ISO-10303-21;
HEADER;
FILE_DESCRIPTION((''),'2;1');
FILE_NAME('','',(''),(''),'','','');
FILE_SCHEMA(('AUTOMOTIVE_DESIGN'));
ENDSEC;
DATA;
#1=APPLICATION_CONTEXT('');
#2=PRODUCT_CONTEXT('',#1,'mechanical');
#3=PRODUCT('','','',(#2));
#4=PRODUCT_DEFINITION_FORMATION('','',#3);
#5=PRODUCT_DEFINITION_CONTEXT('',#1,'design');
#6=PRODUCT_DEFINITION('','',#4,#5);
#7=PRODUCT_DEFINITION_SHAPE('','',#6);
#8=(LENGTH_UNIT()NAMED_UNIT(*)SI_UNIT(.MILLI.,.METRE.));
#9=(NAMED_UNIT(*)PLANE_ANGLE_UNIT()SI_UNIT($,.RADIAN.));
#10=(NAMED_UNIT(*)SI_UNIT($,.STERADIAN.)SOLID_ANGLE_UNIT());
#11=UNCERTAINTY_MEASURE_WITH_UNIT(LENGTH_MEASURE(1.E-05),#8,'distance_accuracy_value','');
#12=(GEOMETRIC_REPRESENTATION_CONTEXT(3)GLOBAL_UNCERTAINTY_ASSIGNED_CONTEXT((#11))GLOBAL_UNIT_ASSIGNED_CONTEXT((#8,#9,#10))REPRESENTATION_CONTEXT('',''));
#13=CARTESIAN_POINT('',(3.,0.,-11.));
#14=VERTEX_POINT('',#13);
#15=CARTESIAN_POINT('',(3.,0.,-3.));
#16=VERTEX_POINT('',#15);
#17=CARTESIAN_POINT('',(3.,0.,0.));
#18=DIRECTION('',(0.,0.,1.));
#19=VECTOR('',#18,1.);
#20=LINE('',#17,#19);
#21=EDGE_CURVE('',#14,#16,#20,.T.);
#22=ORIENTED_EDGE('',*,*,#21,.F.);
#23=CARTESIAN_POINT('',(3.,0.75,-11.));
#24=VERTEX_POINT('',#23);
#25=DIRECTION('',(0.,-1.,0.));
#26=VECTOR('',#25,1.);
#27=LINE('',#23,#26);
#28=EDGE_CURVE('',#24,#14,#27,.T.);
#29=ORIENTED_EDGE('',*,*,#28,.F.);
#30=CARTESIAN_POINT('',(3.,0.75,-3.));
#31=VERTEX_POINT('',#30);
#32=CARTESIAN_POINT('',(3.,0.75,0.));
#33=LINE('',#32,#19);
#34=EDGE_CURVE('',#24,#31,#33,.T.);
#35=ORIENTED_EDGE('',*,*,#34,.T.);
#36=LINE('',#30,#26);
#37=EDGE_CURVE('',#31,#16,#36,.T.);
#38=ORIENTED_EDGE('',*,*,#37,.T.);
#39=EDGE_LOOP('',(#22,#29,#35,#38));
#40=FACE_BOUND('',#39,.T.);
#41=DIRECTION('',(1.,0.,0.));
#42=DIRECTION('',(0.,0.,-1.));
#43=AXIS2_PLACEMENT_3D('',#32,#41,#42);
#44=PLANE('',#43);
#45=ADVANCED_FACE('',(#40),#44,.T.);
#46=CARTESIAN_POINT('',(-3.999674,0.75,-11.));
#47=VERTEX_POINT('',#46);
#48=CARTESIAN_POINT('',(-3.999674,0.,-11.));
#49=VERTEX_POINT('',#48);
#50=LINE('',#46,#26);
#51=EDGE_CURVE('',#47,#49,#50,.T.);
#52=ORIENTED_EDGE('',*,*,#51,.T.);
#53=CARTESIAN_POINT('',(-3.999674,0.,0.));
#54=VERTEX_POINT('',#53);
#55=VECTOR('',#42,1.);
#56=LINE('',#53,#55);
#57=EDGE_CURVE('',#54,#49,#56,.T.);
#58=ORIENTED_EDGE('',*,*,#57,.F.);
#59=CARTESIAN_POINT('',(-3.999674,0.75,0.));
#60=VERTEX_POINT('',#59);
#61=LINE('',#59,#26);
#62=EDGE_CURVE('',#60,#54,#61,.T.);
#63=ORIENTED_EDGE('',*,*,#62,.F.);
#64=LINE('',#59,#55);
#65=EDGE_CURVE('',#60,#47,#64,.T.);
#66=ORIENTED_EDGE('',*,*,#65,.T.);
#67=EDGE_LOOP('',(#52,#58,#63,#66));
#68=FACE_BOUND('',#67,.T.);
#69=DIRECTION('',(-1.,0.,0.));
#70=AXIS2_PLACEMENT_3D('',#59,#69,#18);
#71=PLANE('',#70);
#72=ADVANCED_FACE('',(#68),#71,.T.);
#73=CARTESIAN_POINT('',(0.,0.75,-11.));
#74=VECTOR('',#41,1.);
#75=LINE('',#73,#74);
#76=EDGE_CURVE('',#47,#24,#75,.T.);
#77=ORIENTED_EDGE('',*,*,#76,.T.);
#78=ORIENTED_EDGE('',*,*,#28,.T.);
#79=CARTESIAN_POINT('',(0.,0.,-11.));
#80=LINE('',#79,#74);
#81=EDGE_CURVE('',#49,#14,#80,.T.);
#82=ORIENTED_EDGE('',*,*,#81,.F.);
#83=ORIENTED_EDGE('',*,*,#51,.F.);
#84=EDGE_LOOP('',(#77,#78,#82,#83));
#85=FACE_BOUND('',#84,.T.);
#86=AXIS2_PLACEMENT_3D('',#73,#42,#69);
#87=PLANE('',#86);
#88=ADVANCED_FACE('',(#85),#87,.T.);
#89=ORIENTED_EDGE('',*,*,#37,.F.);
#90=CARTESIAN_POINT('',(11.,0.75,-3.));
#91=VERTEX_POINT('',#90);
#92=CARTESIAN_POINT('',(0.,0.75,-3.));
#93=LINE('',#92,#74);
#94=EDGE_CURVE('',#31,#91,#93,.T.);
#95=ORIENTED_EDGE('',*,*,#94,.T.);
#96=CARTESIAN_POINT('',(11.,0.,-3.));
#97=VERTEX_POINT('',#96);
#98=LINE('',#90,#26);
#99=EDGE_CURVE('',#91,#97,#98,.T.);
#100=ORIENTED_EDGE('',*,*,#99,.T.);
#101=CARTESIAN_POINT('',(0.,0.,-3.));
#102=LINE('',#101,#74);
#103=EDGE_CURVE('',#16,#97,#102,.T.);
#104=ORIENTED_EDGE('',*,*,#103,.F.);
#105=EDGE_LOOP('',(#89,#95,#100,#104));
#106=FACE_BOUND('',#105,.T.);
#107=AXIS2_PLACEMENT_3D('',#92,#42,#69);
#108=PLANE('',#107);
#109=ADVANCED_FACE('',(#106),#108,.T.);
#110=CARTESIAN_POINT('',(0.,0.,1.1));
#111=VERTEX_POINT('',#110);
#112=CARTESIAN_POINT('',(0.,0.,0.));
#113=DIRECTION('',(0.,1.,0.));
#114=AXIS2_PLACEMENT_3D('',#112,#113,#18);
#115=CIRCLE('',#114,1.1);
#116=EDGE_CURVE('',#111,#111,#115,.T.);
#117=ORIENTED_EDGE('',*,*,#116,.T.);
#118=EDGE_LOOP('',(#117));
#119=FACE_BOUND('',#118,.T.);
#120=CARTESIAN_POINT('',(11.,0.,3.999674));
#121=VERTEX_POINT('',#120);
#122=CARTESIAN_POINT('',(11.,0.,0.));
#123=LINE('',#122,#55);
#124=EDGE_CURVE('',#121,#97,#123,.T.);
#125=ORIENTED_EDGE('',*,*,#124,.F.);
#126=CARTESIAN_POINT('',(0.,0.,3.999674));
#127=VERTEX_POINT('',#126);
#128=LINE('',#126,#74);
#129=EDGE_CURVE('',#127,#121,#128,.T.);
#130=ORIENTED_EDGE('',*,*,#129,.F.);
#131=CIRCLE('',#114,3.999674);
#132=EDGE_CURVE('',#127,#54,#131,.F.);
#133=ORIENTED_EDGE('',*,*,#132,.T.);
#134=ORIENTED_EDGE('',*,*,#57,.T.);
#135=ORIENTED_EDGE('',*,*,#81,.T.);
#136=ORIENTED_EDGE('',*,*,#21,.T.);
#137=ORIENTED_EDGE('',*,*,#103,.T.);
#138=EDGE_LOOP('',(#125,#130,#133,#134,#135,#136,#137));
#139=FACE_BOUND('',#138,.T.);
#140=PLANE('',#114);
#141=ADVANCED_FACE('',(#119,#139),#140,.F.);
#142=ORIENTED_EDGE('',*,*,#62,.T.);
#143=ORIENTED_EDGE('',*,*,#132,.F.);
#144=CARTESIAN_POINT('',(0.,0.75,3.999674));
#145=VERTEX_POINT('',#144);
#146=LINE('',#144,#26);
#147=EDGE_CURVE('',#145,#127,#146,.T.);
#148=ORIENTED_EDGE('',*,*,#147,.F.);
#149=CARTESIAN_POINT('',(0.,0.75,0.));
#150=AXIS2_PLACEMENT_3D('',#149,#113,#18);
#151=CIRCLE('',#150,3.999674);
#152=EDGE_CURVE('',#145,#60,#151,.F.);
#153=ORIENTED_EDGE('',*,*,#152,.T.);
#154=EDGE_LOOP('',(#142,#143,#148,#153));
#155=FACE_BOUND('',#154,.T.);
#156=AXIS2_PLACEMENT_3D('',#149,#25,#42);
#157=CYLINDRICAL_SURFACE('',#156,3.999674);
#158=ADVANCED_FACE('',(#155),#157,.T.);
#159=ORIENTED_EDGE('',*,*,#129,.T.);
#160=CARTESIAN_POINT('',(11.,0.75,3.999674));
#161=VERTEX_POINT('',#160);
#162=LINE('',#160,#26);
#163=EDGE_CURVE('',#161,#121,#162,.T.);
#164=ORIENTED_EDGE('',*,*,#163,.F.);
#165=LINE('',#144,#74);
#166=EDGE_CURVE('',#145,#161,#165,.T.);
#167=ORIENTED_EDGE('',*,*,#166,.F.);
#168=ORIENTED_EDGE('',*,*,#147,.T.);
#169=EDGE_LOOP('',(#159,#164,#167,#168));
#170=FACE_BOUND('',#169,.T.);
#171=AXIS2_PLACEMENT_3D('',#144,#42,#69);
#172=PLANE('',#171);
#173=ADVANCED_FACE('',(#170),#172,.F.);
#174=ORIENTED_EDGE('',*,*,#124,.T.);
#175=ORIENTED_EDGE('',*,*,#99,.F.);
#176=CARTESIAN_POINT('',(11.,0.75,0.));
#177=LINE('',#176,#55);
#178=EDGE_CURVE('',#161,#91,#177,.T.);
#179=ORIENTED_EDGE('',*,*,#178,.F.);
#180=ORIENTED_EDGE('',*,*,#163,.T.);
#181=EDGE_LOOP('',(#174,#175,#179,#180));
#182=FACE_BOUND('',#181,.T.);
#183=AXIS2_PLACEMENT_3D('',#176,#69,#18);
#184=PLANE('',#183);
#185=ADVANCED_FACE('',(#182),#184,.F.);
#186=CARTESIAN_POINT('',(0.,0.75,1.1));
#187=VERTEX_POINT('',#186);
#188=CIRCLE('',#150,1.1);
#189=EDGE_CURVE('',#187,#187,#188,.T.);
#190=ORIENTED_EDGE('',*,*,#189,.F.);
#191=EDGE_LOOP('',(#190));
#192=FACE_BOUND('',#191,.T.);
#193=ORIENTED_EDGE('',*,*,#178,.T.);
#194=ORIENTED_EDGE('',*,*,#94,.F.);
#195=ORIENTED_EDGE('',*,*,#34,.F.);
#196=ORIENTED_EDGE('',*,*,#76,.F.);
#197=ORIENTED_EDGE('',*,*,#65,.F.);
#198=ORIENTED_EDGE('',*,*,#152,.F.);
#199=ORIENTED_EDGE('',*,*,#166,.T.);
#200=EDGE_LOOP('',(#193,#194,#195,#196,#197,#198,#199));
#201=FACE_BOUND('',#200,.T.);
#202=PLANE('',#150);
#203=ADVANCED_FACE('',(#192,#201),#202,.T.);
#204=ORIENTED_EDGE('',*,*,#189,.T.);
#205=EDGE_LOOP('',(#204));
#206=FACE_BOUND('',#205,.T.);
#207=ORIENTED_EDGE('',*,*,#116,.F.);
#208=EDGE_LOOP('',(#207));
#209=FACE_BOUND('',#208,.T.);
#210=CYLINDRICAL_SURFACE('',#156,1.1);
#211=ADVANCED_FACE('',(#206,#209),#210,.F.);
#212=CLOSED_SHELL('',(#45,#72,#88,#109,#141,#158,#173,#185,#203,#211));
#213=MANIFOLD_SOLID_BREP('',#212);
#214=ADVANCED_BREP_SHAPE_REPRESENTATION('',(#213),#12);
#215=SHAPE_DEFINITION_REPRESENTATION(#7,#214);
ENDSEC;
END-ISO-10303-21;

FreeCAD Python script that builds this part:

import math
import FreeCAD as App
import Part
import Sketcher

doc = App.newDocument("Part")
params = doc.addObject("Spreadsheet::Sheet", "Params")
for row, (alias, value) in enumerate([
    ("sketch1_diameter", "2.2 mm"),
    ("sketch1_width", "8 mm"),
    ("sketch1_width2", "11 mm"),
    ("pad1_length", "0.75 mm"),
], start=1):
    params.set(f"A{row}", alias)
    params.set(f"B{row}", "=" + value)
    params.setAlias(f"B{row}", alias)

body = doc.addObject("PartDesign::Body", "Body")

# Sketch on XZ plane
sketch1 = body.newObject("Sketcher::SketchObject", "Sketch")
sketch1.AttachmentSupport = (doc.getObject("XZ_Plane"), [""])
sketch1.MapMode = "FlatFace"
sketch1.addGeometry(Part.LineSegment(App.Vector(11, 4, 0), App.Vector(11, -3, 0)), False)
sketch1.addGeometry(Part.LineSegment(App.Vector(11, -3, 0), App.Vector(3, -3, 0)), False)
sketch1.addGeometry(Part.LineSegment(App.Vector(3, -3, 0), App.Vector(3, -11, 0)), False)
sketch1.addGeometry(Part.LineSegment(App.Vector(3, -11, 0), App.Vector(-4, -11, 0)), False)
sketch1.addGeometry(Part.LineSegment(App.Vector(-4, -11, 0), App.Vector(-4, 0, 0)), False)
sketch1.addGeometry(Part.ArcOfCircle(Part.Circle(App.Vector(0, 0, 0), App.Vector(0, 0, 1), 4), math.radians(90), math.radians(180)), False)
sketch1.addGeometry(Part.LineSegment(App.Vector(0, 4, 0), App.Vector(11, 4, 0)), False)
sketch1.addGeometry(Part.Circle(App.Vector(0, 0, 0), App.Vector(0, 0, 1), 1.1), False)
sketch1.addConstraint(Sketcher.Constraint("Coincident", 0, 2, 1, 1))
sketch1.addConstraint(Sketcher.Constraint("Coincident", 1, 2, 2, 1))
sketch1.addConstraint(Sketcher.Constraint("Coincident", 2, 2, 3, 1))
sketch1.addConstraint(Sketcher.Constraint("Coincident", 3, 2, 4, 1))
sketch1.addConstraint(Sketcher.Constraint("Tangent", 4, 2, 5, 2))
sketch1.addConstraint(Sketcher.Constraint("Tangent", 5, 1, 6, 1))
sketch1.addConstraint(Sketcher.Constraint("Coincident", 6, 2, 0, 1))
sketch1.addConstraint(Sketcher.Constraint("Vertical", 0))
sketch1.addConstraint(Sketcher.Constraint("Horizontal", 1))
sketch1.addConstraint(Sketcher.Constraint("Vertical", 2))
sketch1.addConstraint(Sketcher.Constraint("Horizontal", 3))
sketch1.addConstraint(Sketcher.Constraint("Vertical", 4))
sketch1.addConstraint(Sketcher.Constraint("Horizontal", 6))
sketch1.addConstraint(Sketcher.Constraint("Coincident", 5, 3, -1, 1))
sketch1.addConstraint(Sketcher.Constraint("Coincident", 7, 3, -1, 1))
sketch1.addConstraint(Sketcher.Constraint("Equal", 3, 0))
sketch1.addConstraint(Sketcher.Constraint("Equal", 1, 2))
sketch1.addConstraint(Sketcher.Constraint("Diameter", 7, 2.2))
sketch1.addConstraint(Sketcher.Constraint("DistanceX", 1, 2, 1, 1, 8.0))
sketch1.addConstraint(Sketcher.Constraint("DistanceX", 6, 1, 6, 2, 11.0))
sketch1.addConstraint(Sketcher.Constraint("Radius", 5, 3.999674))
sketch1.setExpression("Constraints[17]", "Params.sketch1_diameter")
sketch1.setExpression("Constraints[18]", "Params.sketch1_width")
sketch1.setExpression("Constraints[19]", "Params.sketch1_width2")
pad1 = body.newObject("PartDesign::Pad", "Pad")
pad1.Profile = sketch1
pad1.setExpression("Length", "Params.pad1_length")
pad1.Reversed = True

doc.recompute()
